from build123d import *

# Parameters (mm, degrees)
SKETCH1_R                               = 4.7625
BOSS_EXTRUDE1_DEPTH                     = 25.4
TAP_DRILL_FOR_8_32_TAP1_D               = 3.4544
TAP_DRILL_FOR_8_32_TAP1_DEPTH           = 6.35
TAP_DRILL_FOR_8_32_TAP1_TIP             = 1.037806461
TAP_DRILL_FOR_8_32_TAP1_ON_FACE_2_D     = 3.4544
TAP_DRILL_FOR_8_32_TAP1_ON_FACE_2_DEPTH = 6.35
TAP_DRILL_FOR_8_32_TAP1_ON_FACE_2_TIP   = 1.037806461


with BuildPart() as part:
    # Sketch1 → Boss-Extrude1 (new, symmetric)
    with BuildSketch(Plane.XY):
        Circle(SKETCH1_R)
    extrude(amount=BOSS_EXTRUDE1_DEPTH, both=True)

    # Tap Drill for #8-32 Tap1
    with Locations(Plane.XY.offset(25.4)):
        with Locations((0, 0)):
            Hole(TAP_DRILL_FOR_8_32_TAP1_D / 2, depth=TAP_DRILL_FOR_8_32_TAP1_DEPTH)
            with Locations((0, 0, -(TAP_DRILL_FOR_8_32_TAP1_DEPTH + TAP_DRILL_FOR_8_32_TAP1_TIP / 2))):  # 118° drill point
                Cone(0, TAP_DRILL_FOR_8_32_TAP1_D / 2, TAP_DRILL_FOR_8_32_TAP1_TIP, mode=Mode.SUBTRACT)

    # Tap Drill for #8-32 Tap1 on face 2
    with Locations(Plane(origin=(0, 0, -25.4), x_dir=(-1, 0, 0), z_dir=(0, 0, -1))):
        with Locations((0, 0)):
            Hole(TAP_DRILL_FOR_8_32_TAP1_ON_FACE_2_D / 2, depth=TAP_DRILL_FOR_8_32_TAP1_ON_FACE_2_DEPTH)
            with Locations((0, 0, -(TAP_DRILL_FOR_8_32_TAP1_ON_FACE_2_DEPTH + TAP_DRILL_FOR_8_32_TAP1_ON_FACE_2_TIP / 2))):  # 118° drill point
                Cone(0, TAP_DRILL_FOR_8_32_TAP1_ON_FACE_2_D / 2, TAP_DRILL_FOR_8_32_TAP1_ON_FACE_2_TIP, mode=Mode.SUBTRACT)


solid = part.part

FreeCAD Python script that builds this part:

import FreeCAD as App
import Part
import Sketcher
Q = App.Units.Quantity

doc = App.newDocument("Part")
body = doc.addObject("PartDesign::Body", "Body")

# Sketch on XY plane
sketch1 = body.newObject("Sketcher::SketchObject", "Sketch")
sketch1.AttachmentSupport = (doc.getObject("XY_Plane"), [""])
sketch1.MapMode = "FlatFace"
sketch1.addGeometry(Part.Circle(App.Vector(0, 0, 0), App.Vector(0, 0, 1), 4.8), False)
sketch1.addConstraint([
    Sketcher.Constraint("Coincident", 0, 3, -1, 1),
    Sketcher.Constraint("Diameter", 0, Q("0.375 in")),
])
pad1 = body.newObject("PartDesign::Pad", "Pad")
pad1.Profile = sketch1
pad1.Length = Q("2 in")
pad1.Midplane = True

# Sketch on XY plane
sketch2 = body.newObject("Sketcher::SketchObject", "Sketch001")
sketch2.AttachmentSupport = (doc.getObject("XY_Plane"), [""])
sketch2.MapMode = "FlatFace"
sketch2.AttachmentOffset = App.Placement(App.Vector(0, 0, 1 * 25.4), App.Rotation())
sketch2.addGeometry(Part.Circle(App.Vector(0, 0, 0), App.Vector(0, 0, 1), 1.7), False)
sketch2.addConstraint([
    Sketcher.Constraint("Coincident", 0, 3, -1, 1),
    Sketcher.Constraint("Diameter", 0, Q("0.136 in")),
])
doc.recompute()
hole = body.newObject("PartDesign::Hole", "Hole")
hole.Profile = sketch2
hole.ThreadType = "None"
hole.Diameter = Q("0.136 in")
hole.DepthType = "Dimension"
hole.Depth = Q("0.25 in")
hole.DrillPoint = "Angled"
hole.DrillPointAngle = 118

# Sketch on XY plane
sketch3 = body.newObject("Sketcher::SketchObject", "Sketch002")
sketch3.AttachmentSupport = (doc.getObject("XY_Plane"), [""])
sketch3.MapMode = "FlatFace"
sketch3.AttachmentOffset = App.Placement(App.Vector(0, 0, -1 * 25.4), App.Rotation())
sketch3.addGeometry(Part.Circle(App.Vector(0, 0, 0), App.Vector(0, 0, 1), 1.7), False)
sketch3.addConstraint([
    Sketcher.Constraint("Coincident", 0, 3, -1, 1),
    Sketcher.Constraint("Diameter", 0, Q("0.136 in")),
])
doc.recompute()
hole2 = body.newObject("PartDesign::Hole", "Hole001")
hole2.Profile = sketch3
hole2.ThreadType = "None"
hole2.Diameter = Q("0.136 in")
hole2.DepthType = "Dimension"
hole2.Depth = Q("0.25 in")
hole2.DrillPoint = "Angled"
hole2.DrillPointAngle = 118
hole2.Reversed = True

doc.recompute()
